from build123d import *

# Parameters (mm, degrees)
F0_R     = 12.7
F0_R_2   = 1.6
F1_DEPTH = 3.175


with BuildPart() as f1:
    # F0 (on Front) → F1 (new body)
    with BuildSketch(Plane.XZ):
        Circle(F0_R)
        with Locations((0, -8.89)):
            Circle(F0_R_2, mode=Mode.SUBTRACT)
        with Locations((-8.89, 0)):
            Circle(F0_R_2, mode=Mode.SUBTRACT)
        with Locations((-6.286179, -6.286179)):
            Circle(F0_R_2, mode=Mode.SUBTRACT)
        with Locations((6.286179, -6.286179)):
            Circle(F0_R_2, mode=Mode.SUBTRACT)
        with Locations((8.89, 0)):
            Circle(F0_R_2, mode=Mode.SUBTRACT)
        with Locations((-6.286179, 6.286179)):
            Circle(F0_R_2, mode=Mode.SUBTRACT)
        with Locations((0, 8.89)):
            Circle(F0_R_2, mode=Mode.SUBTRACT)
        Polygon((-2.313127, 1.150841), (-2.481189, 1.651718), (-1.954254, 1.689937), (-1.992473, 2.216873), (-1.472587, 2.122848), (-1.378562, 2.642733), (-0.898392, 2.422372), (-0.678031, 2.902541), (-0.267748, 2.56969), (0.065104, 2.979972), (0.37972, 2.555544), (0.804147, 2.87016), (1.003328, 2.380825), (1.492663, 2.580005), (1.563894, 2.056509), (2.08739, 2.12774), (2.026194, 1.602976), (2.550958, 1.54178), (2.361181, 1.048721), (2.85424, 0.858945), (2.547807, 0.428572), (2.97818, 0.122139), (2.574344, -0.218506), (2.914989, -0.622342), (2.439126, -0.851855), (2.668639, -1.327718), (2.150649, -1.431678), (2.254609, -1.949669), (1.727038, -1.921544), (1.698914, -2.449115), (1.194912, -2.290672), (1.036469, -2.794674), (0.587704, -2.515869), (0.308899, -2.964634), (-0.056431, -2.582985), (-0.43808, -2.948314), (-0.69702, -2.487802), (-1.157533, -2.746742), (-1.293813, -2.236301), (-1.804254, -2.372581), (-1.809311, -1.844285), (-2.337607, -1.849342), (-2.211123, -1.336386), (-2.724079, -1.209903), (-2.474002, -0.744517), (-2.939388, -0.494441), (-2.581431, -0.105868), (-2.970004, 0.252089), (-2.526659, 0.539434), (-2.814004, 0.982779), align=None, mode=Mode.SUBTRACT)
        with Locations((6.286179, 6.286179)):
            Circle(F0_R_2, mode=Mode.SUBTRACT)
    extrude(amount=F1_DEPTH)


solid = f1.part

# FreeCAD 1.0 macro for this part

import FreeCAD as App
import Part
import Sketcher
Q = App.Units.Quantity

doc = App.newDocument("Part")
body = doc.addObject("PartDesign::Body", "Body")

sketch1 = body.newObject("Sketcher::SketchObject", "Sketch")
sketch1.AttachmentSupport = (doc.getObject("XZ_Plane"), [""])
sketch1.MapMode = "FlatFace"
sketch1.addGeometry(Part.Circle(App.Vector(0, 0, 0), App.Vector(0, 0, 1), 12.7), False)
sketch1.addGeometry(Part.Circle(App.Vector(-6.3, -6.3, 0), App.Vector(0, 0, 1), 1.6), False)
sketch1.addGeometry(Part.Circle(App.Vector(0, -8.9, 0), App.Vector(0, 0, 1), 1.6), False)
sketch1.addGeometry(Part.Circle(App.Vector(6.3, -6.3, 0), App.Vector(0, 0, 1), 1.6), False)
sketch1.addGeometry(Part.Circle(App.Vector(-8.9, 0, 0), App.Vector(0, 0, 1), 1.6), False)
sketch1.addGeometry(Part.Circle(App.Vector(-6.3, 6.3, 0), App.Vector(0, 0, 1), 1.6), False)
sketch1.addGeometry(Part.LineSegment(App.Vector(-2.8, 1, 0), App.Vector(-2.3, 1.2, 0)), False)
sketch1.addGeometry(Part.LineSegment(App.Vector(-2.3, 1.2, 0), App.Vector(-2.5, 1.7, 0)), False)
sketch1.addGeometry(Part.LineSegment(App.Vector(-2.5, 1.7, 0), App.Vector(-2, 1.7, 0)), False)
sketch1.addGeometry(Part.LineSegment(App.Vector(-2, 1.7, 0), App.Vector(-2, 2.2, 0)), False)
sketch1.addGeometry(Part.LineSegment(App.Vector(-2, 2.2, 0), App.Vector(-1.5, 2.1, 0)), False)
sketch1.addGeometry(Part.LineSegment(App.Vector(-1.5, 2.1, 0), App.Vector(-1.4, 2.6, 0)), False)
sketch1.addGeometry(Part.LineSegment(App.Vector(-1.4, 2.6, 0), App.Vector(-0.9, 2.4, 0)), False)
sketch1.addGeometry(Part.LineSegment(App.Vector(-0.9, 2.4, 0), App.Vector(-0.7, 2.9, 0)), False)
sketch1.addGeometry(Part.LineSegment(App.Vector(-0.7, 2.9, 0), App.Vector(-0.3, 2.6, 0)), False)
sketch1.addGeometry(Part.LineSegment(App.Vector(-0.3, 2.6, 0), App.Vector(0.1, 3, 0)), False)
sketch1.addGeometry(Part.LineSegment(App.Vector(0.1, 3, 0), App.Vector(0.4, 2.6, 0)), False)
sketch1.addGeometry(Part.LineSegment(App.Vector(0.4, 2.6, 0), App.Vector(0.8, 2.9, 0)), False)
sketch1.addGeometry(Part.LineSegment(App.Vector(0.8, 2.9, 0), App.Vector(1, 2.4, 0)), False)
sketch1.addGeometry(Part.LineSegment(App.Vector(1, 2.4, 0), App.Vector(1.5, 2.6, 0)), False)
sketch1.addGeometry(Part.LineSegment(App.Vector(1.5, 2.6, 0), App.Vector(1.6, 2.1, 0)), False)
sketch1.addGeometry(Part.LineSegment(App.Vector(1.6, 2.1, 0), App.Vector(2.1, 2.1, 0)), False)
sketch1.addGeometry(Part.LineSegment(App.Vector(2.1, 2.1, 0), App.Vector(2, 1.6, 0)), False)
sketch1.addGeometry(Part.LineSegment(App.Vector(2, 1.6, 0), App.Vector(2.6, 1.5, 0)), False)
sketch1.addGeometry(Part.LineSegment(App.Vector(2.6, 1.5, 0), App.Vector(2.4, 1, 0)), False)
sketch1.addGeometry(Part.LineSegment(App.Vector(2.4, 1, 0), App.Vector(2.9, 0.9, 0)), False)
sketch1.addGeometry(Part.LineSegment(App.Vector(2.9, 0.9, 0), App.Vector(2.5, 0.4, 0)), False)
sketch1.addGeometry(Part.LineSegment(App.Vector(2.5, 0.4, 0), App.Vector(3, 0.1, 0)), False)
sketch1.addGeometry(Part.LineSegment(App.Vector(3, 0.1, 0), App.Vector(2.6, -0.2, 0)), False)
sketch1.addGeometry(Part.LineSegment(App.Vector(2.6, -0.2, 0), App.Vector(2.9, -0.6, 0)), False)
sketch1.addGeometry(Part.LineSegment(App.Vector(2.9, -0.6, 0), App.Vector(2.4, -0.9, 0)), False)
sketch1.addGeometry(Part.LineSegment(App.Vector(2.4, -0.9, 0), App.Vector(2.7, -1.3, 0)), False)
sketch1.addGeometry(Part.LineSegment(App.Vector(2.7, -1.3, 0), App.Vector(2.2, -1.4, 0)), False)
sketch1.addGeometry(Part.LineSegment(App.Vector(2.2, -1.4, 0), App.Vector(2.3, -1.9, 0)), False)
sketch1.addGeometry(Part.LineSegment(App.Vector(2.3, -1.9, 0), App.Vector(1.7, -1.9, 0)), False)
sketch1.addGeometry(Part.LineSegment(App.Vector(1.7, -1.9, 0), App.Vector(1.7, -2.4, 0)), False)
sketch1.addGeometry(Part.LineSegment(App.Vector(1.7, -2.4, 0), App.Vector(1.2, -2.3, 0)), False)
sketch1.addGeometry(Part.LineSegment(App.Vector(1.2, -2.3, 0), App.Vector(1, -2.8, 0)), False)
sketch1.addGeometry(Part.LineSegment(App.Vector(1, -2.8, 0), App.Vector(0.6, -2.5, 0)), False)
sketch1.addGeometry(Part.LineSegment(App.Vector(0.6, -2.5, 0), App.Vector(0.3, -3, 0)), False)
sketch1.addGeometry(Part.LineSegment(App.Vector(0.3, -3, 0), App.Vector(-0.1, -2.6, 0)), False)
sketch1.addGeometry(Part.LineSegment(App.Vector(-0.1, -2.6, 0), App.Vector(-0.4, -2.9, 0)), False)
sketch1.addGeometry(Part.LineSegment(App.Vector(-0.4, -2.9, 0), App.Vector(-0.7, -2.5, 0)), False)
sketch1.addGeometry(Part.LineSegment(App.Vector(-0.7, -2.5, 0), App.Vector(-1.2, -2.7, 0)), False)
sketch1.addGeometry(Part.LineSegment(App.Vector(-1.2, -2.7, 0), App.Vector(-1.3, -2.2, 0)), False)
sketch1.addGeometry(Part.LineSegment(App.Vector(-1.3, -2.2, 0), App.Vector(-1.8, -2.4, 0)), False)
sketch1.addGeometry(Part.LineSegment(App.Vector(-1.8, -2.4, 0), App.Vector(-1.8, -1.8, 0)), False)
sketch1.addGeometry(Part.LineSegment(App.Vector(-1.8, -1.8, 0), App.Vector(-2.3, -1.8, 0)), False)
sketch1.addGeometry(Part.LineSegment(App.Vector(-2.3, -1.8, 0), App.Vector(-2.2, -1.3, 0)), False)
sketch1.addGeometry(Part.LineSegment(App.Vector(-2.2, -1.3, 0), App.Vector(-2.7, -1.2, 0)), False)
sketch1.addGeometry(Part.LineSegment(App.Vector(-2.7, -1.2, 0), App.Vector(-2.5, -0.7, 0)), False)
sketch1.addGeometry(Part.LineSegment(App.Vector(-2.5, -0.7, 0), App.Vector(-2.9, -0.5, 0)), False)
sketch1.addGeometry(Part.LineSegment(App.Vector(-2.9, -0.5, 0), App.Vector(-2.6, -0.1, 0)), False)
sketch1.addGeometry(Part.LineSegment(App.Vector(-2.6, -0.1, 0), App.Vector(-3, 0.3, 0)), False)
sketch1.addGeometry(Part.LineSegment(App.Vector(-3, 0.3, 0), App.Vector(-2.5, 0.5, 0)), False)
sketch1.addGeometry(Part.LineSegment(App.Vector(-2.5, 0.5, 0), App.Vector(-2.8, 1, 0)), False)
sketch1.addGeometry(Part.Circle(App.Vector(8.9, 0, 0), App.Vector(0, 0, 1), 1.6), False)
sketch1.addGeometry(Part.Circle(App.Vector(0, 8.9, 0), App.Vector(0, 0, 1), 1.6), False)
sketch1.addGeometry(Part.Circle(App.Vector(6.3, 6.3, 0), App.Vector(0, 0, 1), 1.6), False)
sketch1.addConstraint(Sketcher.Constraint("Coincident", 6, 2, 7, 1))
sketch1.addConstraint(Sketcher.Constraint("Coincident", 7, 2, 8, 1))
sketch1.addConstraint(Sketcher.Constraint("Coincident", 8, 2, 9, 1))
sketch1.addConstraint(Sketcher.Constraint("Coincident", 9, 2, 10, 1))
sketch1.addConstraint(Sketcher.Constraint("Coincident", 10, 2, 11, 1))
sketch1.addConstraint(Sketcher.Constraint("Coincident", 11, 2, 12, 1))
sketch1.addConstraint(Sketcher.Constraint("Coincident", 12, 2, 13, 1))
sketch1.addConstraint(Sketcher.Constraint("Coincident", 13, 2, 14, 1))
sketch1.addConstraint(Sketcher.Constraint("Coincident", 14, 2, 15, 1))
sketch1.addConstraint(Sketcher.Constraint("Coincident", 15, 2, 16, 1))
sketch1.addConstraint(Sketcher.Constraint("Coincident", 16, 2, 17, 1))
sketch1.addConstraint(Sketcher.Constraint("Coincident", 17, 2, 18, 1))
sketch1.addConstraint(Sketcher.Constraint("Coincident", 18, 2, 19, 1))
sketch1.addConstraint(Sketcher.Constraint("Coincident", 19, 2, 20, 1))
sketch1.addConstraint(Sketcher.Constraint("Coincident", 20, 2, 21, 1))
sketch1.addConstraint(Sketcher.Constraint("Coincident", 21, 2, 22, 1))
sketch1.addConstraint(Sketcher.Constraint("Coincident", 22, 2, 23, 1))
sketch1.addConstraint(Sketcher.Constraint("Coincident", 23, 2, 24, 1))
sketch1.addConstraint(Sketcher.Constraint("Coincident", 24, 2, 25, 1))
sketch1.addConstraint(Sketcher.Constraint("Coincident", 25, 2, 26, 1))
sketch1.addConstraint(Sketcher.Constraint("Coincident", 26, 2, 27, 1))
sketch1.addConstraint(Sketcher.Constraint("Coincident", 27, 2, 28, 1))
sketch1.addConstraint(Sketcher.Constraint("Coincident", 28, 2, 29, 1))
sketch1.addConstraint(Sketcher.Constraint("Coincident", 29, 2, 30, 1))
sketch1.addConstraint(Sketcher.Constraint("Coincident", 30, 2, 31, 1))
sketch1.addConstraint(Sketcher.Constraint("Coincident", 31, 2, 32, 1))
sketch1.addConstraint(Sketcher.Constraint("Coincident", 32, 2, 33, 1))
sketch1.addConstraint(Sketcher.Constraint("Coincident", 33, 2, 34, 1))
sketch1.addConstraint(Sketcher.Constraint("Coincident", 34, 2, 35, 1))
sketch1.addConstraint(Sketcher.Constraint("Coincident", 35, 2, 36, 1))
sketch1.addConstraint(Sketcher.Constraint("Coincident", 36, 2, 37, 1))
sketch1.addConstraint(Sketcher.Constraint("Coincident", 37, 2, 38, 1))
sketch1.addConstraint(Sketcher.Constraint("Coincident", 38, 2, 39, 1))
sketch1.addConstraint(Sketcher.Constraint("Coincident", 39, 2, 40, 1))
sketch1.addConstraint(Sketcher.Constraint("Coincident", 40, 2, 41, 1))
sketch1.addConstraint(Sketcher.Constraint("Coincident", 41, 2, 42, 1))
sketch1.addConstraint(Sketcher.Constraint("Coincident", 42, 2, 43, 1))
sketch1.addConstraint(Sketcher.Constraint("Coincident", 43, 2, 44, 1))
sketch1.addConstraint(Sketcher.Constraint("Coincident", 44, 2, 45, 1))
sketch1.addConstraint(Sketcher.Constraint("Coincident", 45, 2, 46, 1))
sketch1.addConstraint(Sketcher.Constraint("Coincident", 46, 2, 47, 1))
sketch1.addConstraint(Sketcher.Constraint("Coincident", 47, 2, 48, 1))
sketch1.addConstraint(Sketcher.Constraint("Coincident", 48, 2, 49, 1))
sketch1.addConstraint(Sketcher.Constraint("Coincident", 49, 2, 50, 1))
sketch1.addConstraint(Sketcher.Constraint("Coincident", 50, 2, 51, 1))
sketch1.addConstraint(Sketcher.Constraint("Coincident", 51, 2, 52, 1))
sketch1.addConstraint(Sketcher.Constraint("Coincident", 52, 2, 53, 1))
sketch1.addConstraint(Sketcher.Constraint("Coincident", 53, 2, 54, 1))
sketch1.addConstraint(Sketcher.Constraint("Coincident", 54, 2, 55, 1))
sketch1.addConstraint(Sketcher.Constraint("Coincident", 55, 2, 6, 1))
sketch1.addConstraint(Sketcher.Constraint("Coincident", 0, 3, -1, 1))
sketch1.addConstraint(Sketcher.Constraint("Equal", 1, 2))
sketch1.addConstraint(Sketcher.Constraint("Equal", 2, 3))
sketch1.addConstraint(Sketcher.Constraint("Equal", 3, 4))
sketch1.addConstraint(Sketcher.Constraint("Equal", 4, 5))
sketch1.addConstraint(Sketcher.Constraint("Equal", 5, 56))
sketch1.addConstraint(Sketcher.Constraint("Equal", 56, 57))
sketch1.addConstraint(Sketcher.Constraint("Equal", 57, 58))
sketch1.addConstraint(Sketcher.Constraint("Symmetric", 3, 3, 5, 3, -1, 1))
sketch1.addConstraint(Sketcher.Constraint("Symmetric", 4, 3, 56, 3, -1, 1))
sketch1.addConstraint(Sketcher.Constraint("Symmetric", 2, 3, 57, 3, -1, 1))
sketch1.addConstraint(Sketcher.Constraint("Symmetric", 1, 3, 58, 3, -1, 1))
sketch1.addConstraint(Sketcher.Constraint("Symmetric", 1, 3, 3, 3, -2))
sketch1.addConstraint(Sketcher.Constraint("PointOnObject", 2, 3, -2))
sketch1.addConstraint(Sketcher.Constraint("PointOnObject", 4, 3, -1))
sketch1.addConstraint(Sketcher.Constraint("Perpendicular", 6, 7))
sketch1.addConstraint(Sketcher.Constraint("Perpendicular", 8, 9))
sketch1.addConstraint(Sketcher.Constraint("Perpendicular", 10, 11))
sketch1.addConstraint(Sketcher.Constraint("Perpendicular", 12, 13))
sketch1.addConstraint(Sketcher.Constraint("Perpendicular", 16, 17))
sketch1.addConstraint(Sketcher.Constraint("Perpendicular", 18, 19))
sketch1.addConstraint(Sketcher.Constraint("Perpendicular", 20, 21))
sketch1.addConstraint(Sketcher.Constraint("Perpendicular", 22, 23))
sketch1.addConstraint(Sketcher.Constraint("Perpendicular", 24, 25))
sketch1.addConstraint(Sketcher.Constraint("Perpendicular", 26, 27))
sketch1.addConstraint(Sketcher.Constraint("Perpendicular", 28, 29))
sketch1.addConstraint(Sketcher.Constraint("Perpendicular", 30, 31))
sketch1.addConstraint(Sketcher.Constraint("Perpendicular", 32, 33))
sketch1.addConstraint(Sketcher.Constraint("Perpendicular", 34, 35))
sketch1.addConstraint(Sketcher.Constraint("Perpendicular", 36, 37))
sketch1.addConstraint(Sketcher.Constraint("Perpendicular", 38, 39))
sketch1.addConstraint(Sketcher.Constraint("Perpendicular", 40, 41))
sketch1.addConstraint(Sketcher.Constraint("Perpendicular", 42, 43))
sketch1.addConstraint(Sketcher.Constraint("Perpendicular", 44, 45))
sketch1.addConstraint(Sketcher.Constraint("Perpendicular", 46, 47))
sketch1.addConstraint(Sketcher.Constraint("Perpendicular", 48, 49))
sketch1.addConstraint(Sketcher.Constraint("Perpendicular", 50, 51))
sketch1.addConstraint(Sketcher.Constraint("Perpendicular", 52, 53))
sketch1.addConstraint(Sketcher.Constraint("Perpendicular", 54, 55))
sketch1.addConstraint(Sketcher.Constraint("Equal", 6, 7))
sketch1.addConstraint(Sketcher.Constraint("Equal", 7, 8))
sketch1.addConstraint(Sketcher.Constraint("Equal", 8, 9))
sketch1.addConstraint(Sketcher.Constraint("Equal", 9, 10))
sketch1.addConstraint(Sketcher.Constraint("Equal", 10, 11))
sketch1.addConstraint(Sketcher.Constraint("Equal", 11, 12))
sketch1.addConstraint(Sketcher.Constraint("Equal", 12, 13))
sketch1.addConstraint(Sketcher.Constraint("Equal", 13, 14))
sketch1.addConstraint(Sketcher.Constraint("Equal", 14, 15))
sketch1.addConstraint(Sketcher.Constraint("Equal", 15, 16))
sketch1.addConstraint(Sketcher.Constraint("Equal", 16, 17))
sketch1.addConstraint(Sketcher.Constraint("Equal", 17, 18))
sketch1.addConstraint(Sketcher.Constraint("Equal", 18, 19))
sketch1.addConstraint(Sketcher.Constraint("Equal", 19, 20))
sketch1.addConstraint(Sketcher.Constraint("Equal", 20, 21))
sketch1.addConstraint(Sketcher.Constraint("Equal", 21, 22))
sketch1.addConstraint(Sketcher.Constraint("Equal", 22, 23))
sketch1.addConstraint(Sketcher.Constraint("Equal", 23, 24))
sketch1.addConstraint(Sketcher.Constraint("Equal", 24, 25))
sketch1.addConstraint(Sketcher.Constraint("Equal", 25, 26))
sketch1.addConstraint(Sketcher.Constraint("Equal", 26, 27))
sketch1.addConstraint(Sketcher.Constraint("Equal", 27, 28))
sketch1.addConstraint(Sketcher.Constraint("Equal", 28, 29))
sketch1.addConstraint(Sketcher.Constraint("Equal", 29, 30))
sketch1.addConstraint(Sketcher.Constraint("Equal", 30, 31))
sketch1.addConstraint(Sketcher.Constraint("Equal", 31, 32))
sketch1.addConstraint(Sketcher.Constraint("Equal", 32, 33))
sketch1.addConstraint(Sketcher.Constraint("Equal", 33, 34))
sketch1.addConstraint(Sketcher.Constraint("Equal", 34, 35))
sketch1.addConstraint(Sketcher.Constraint("Equal", 35, 36))
sketch1.addConstraint(Sketcher.Constraint("Equal", 36, 37))
sketch1.addConstraint(Sketcher.Constraint("Equal", 37, 38))
sketch1.addConstraint(Sketcher.Constraint("Equal", 38, 39))
sketch1.addConstraint(Sketcher.Constraint("Equal", 39, 40))
sketch1.addConstraint(Sketcher.Constraint("Equal", 40, 41))
sketch1.addConstraint(Sketcher.Constraint("Equal", 41, 42))
sketch1.addConstraint(Sketcher.Constraint("Equal", 42, 43))
sketch1.addConstraint(Sketcher.Constraint("Equal", 43, 44))
sketch1.addConstraint(Sketcher.Constraint("Equal", 44, 45))
sketch1.addConstraint(Sketcher.Constraint("Equal", 45, 46))
sketch1.addConstraint(Sketcher.Constraint("Equal", 46, 47))
sketch1.addConstraint(Sketcher.Constraint("Equal", 47, 48))
sketch1.addConstraint(Sketcher.Constraint("Equal", 48, 49))
sketch1.addConstraint(Sketcher.Constraint("Equal", 49, 50))
sketch1.addConstraint(Sketcher.Constraint("Equal", 50, 51))
sketch1.addConstraint(Sketcher.Constraint("Equal", 51, 52))
sketch1.addConstraint(Sketcher.Constraint("Equal", 52, 53))
sketch1.addConstraint(Sketcher.Constraint("Equal", 53, 54))
sketch1.addConstraint(Sketcher.Constraint("Equal", 54, 55))
sketch1.addConstraint(Sketcher.Constraint("Diameter", 0, Q("1 in")))
sketch1.addConstraint(Sketcher.Constraint("Diameter", 1, Q("3.2 mm")))
sketch1.addConstraint(Sketcher.Constraint("DistanceY", 2, 3, -1, 1, Q("0.35 in")))
sketch1.addConstraint(Sketcher.Constraint("DistanceX", 4, 3, -1, 1, Q("0.35 in")))
sketch1.addConstraint(Sketcher.Constraint("Distance", 6, Q("0.0208 in")))
sketch1.addConstraint(Sketcher.Constraint("DistanceY", -1, 1, 23, 2, Q("0.0607 in")))
sketch1.addConstraint(Sketcher.Constraint("DistanceY", 12, 2, 14, 2, Q("0.0057999 in")))
sketch1.addConstraint(Sketcher.Constraint("DistanceY", 45, 2, 47, 2, Q("0.0206 in")))
sketch1.addConstraint(Sketcher.Constraint("DistanceX", -1, 1, 39, 2, Q("0.308899 mm")))
sketch1.addConstraint(Sketcher.Constraint("DistanceY", 42, 2, -1, 1, Q("2.487802 mm")))
sketch1.addConstraint(Sketcher.Constraint("DistanceY", 44, 2, -1, 1, Q("2.236301 mm")))
sketch1.addConstraint(Sketcher.Constraint("DistanceX", 50, 2, -1, 1, Q("2.474002 mm")))
sketch1.addConstraint(Sketcher.Constraint("DistanceY", 9, 2, 12, 2, Q("0.205499 mm")))
sketch1.addConstraint(Sketcher.Constraint("DistanceY", 12, 2, 15, 2, Q("0.5576 mm")))
sketch1.addConstraint(Sketcher.Constraint("DistanceX", 20, 2, 22, 2, Q("0.4623 mm")))
sketch1.addConstraint(Sketcher.Constraint("DistanceX", 24, 2, 27, 2, Q("0.616999 mm")))
sketch1.addConstraint(Sketcher.Constraint("DistanceY", 30, 2, 25, 2, Q("1.7108 mm")))
sketch1.addConstraint(Sketcher.Constraint("DistanceX", 34, 2, 31, 2, Q("0.941601 mm")))
sketch1.addConstraint(Sketcher.Constraint("DistanceY", 38, 2, 33, 2, Q("0.5662 mm")))
sketch1.addConstraint(Sketcher.Constraint("DistanceX", 40, 2, 37, 2, Q("1.0929 mm")))
sketch1.addConstraint(Sketcher.Constraint("DistanceY", 43, 2, 47, 2, Q("0.8974 mm")))
sketch1.addConstraint(Sketcher.Constraint("DistanceY", 46, 2, 48, 2, Q("0.507899 mm")))
sketch1.addConstraint(Sketcher.Constraint("DistanceX", 53, 2, 50, 2, Q("0.496002 mm")))
sketch1.addConstraint(Sketcher.Constraint("DistanceY", 52, 2, 54, 2, Q("0.645302 mm")))
sketch1.addConstraint(Sketcher.Constraint("DistanceX", 1, 3, -1, 1, Q("6.286179 mm")))
sketch1.addConstraint(Sketcher.Constraint("DistanceY", 1, 3, -1, 1, Q("6.286179 mm")))
sketch1.addConstraint(Sketcher.Constraint("DistanceY", -1, 1, 6, 2, Q("1.150841 mm")))
sketch1.addConstraint(Sketcher.Constraint("DistanceX", 12, 2, -1, 1, Q("0.898392 mm")))
sketch1.addConstraint(Sketcher.Constraint("DistanceX", 13, 2, -1, 1, Q("0.678031 mm")))
sketch1.addConstraint(Sketcher.Constraint("DistanceX", -1, 1, 16, 2, Q("0.37972 mm")))
sketch1.addConstraint(Sketcher.Constraint("DistanceY", -1, 1, 20, 2, Q("2.056509 mm")))
sketch1.addConstraint(Sketcher.Constraint("DistanceX", -1, 1, 24, 2, Q("2.361181 mm")))
sketch1.addConstraint(Sketcher.Constraint("DistanceX", -1, 1, 29, 2, Q("2.914989 mm")))
pad1 = body.newObject("PartDesign::Pad", "Pad")
pad1.Profile = sketch1
pad1.Length = Q("0.125 in")

doc.recompute()
